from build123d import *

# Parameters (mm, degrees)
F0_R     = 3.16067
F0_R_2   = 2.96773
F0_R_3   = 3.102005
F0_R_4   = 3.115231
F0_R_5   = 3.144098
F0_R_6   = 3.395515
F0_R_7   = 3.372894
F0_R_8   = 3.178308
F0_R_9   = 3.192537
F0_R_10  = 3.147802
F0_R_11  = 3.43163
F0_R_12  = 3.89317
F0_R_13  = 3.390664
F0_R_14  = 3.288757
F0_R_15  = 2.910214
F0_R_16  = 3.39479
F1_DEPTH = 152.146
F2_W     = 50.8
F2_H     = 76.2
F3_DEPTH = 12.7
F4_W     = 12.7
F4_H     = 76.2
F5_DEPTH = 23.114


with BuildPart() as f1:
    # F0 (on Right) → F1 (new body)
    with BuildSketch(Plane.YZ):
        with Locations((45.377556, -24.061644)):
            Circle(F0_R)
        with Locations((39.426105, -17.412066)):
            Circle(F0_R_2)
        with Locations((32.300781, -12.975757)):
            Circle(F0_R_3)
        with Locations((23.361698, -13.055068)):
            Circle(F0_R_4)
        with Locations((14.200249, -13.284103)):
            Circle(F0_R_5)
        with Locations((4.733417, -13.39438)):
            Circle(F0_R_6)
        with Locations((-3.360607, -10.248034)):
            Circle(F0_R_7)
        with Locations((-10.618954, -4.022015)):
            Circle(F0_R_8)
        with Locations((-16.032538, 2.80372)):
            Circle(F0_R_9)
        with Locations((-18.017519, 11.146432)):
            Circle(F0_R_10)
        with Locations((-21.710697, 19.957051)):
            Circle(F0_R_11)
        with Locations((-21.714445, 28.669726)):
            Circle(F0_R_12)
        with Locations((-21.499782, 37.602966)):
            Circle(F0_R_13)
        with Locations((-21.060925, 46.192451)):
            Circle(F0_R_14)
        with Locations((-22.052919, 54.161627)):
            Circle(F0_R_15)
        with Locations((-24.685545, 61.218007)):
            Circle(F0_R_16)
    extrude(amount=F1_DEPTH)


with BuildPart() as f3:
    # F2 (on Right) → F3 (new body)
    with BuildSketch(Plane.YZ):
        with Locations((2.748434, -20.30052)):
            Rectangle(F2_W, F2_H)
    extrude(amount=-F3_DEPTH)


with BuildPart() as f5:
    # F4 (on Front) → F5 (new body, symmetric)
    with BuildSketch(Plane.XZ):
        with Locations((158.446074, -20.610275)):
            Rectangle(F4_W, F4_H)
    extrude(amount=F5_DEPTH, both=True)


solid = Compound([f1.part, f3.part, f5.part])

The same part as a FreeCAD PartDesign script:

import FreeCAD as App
import Part
import Sketcher

V = App.Vector
Q = App.Units.Quantity

doc = App.newDocument("Part")
body = doc.addObject("PartDesign::Body", "Body")
body.AllowCompound = True

# Sketch on YZ plane
sketch1 = doc.addObject("Sketcher::SketchObject", "Sketch")
body.addObject(sketch1)
sketch1.AttachmentSupport = (doc.YZ_Plane, [""])
sketch1.MapMode = "FlatFace"
sketch1.addGeometry([
    Part.Circle(V(45.377556, -24.061644, 0), V(0, 0, 1), 3.16067),  # 0
    Part.Circle(V(39.426105, -17.412066, 0), V(0, 0, 1), 2.96773),  # 1
    Part.Circle(V(32.300781, -12.975757, 0), V(0, 0, 1), 3.102005),  # 2
    Part.Circle(V(23.361698, -13.055068, 0), V(0, 0, 1), 3.115231),  # 3
    Part.Circle(V(14.200249, -13.284103, 0), V(0, 0, 1), 3.144098),  # 4
    Part.Circle(V(4.733417, -13.39438, 0), V(0, 0, 1), 3.395515),  # 5
    Part.Circle(V(-3.360607, -10.248034, 0), V(0, 0, 1), 3.372894),  # 6
    Part.Circle(V(-10.618954, -4.022015, 0), V(0, 0, 1), 3.178308),  # 7
    Part.Circle(V(-16.032538, 2.80372, 0), V(0, 0, 1), 3.192537),  # 8
    Part.Circle(V(-18.017519, 11.146432, 0), V(0, 0, 1), 3.147802),  # 9
    Part.Circle(V(-21.710697, 19.957051, 0), V(0, 0, 1), 3.43163),  # 10
    Part.Circle(V(-21.714445, 28.669726, 0), V(0, 0, 1), 3.89317),  # 11
    Part.Circle(V(-21.499782, 37.602966, 0), V(0, 0, 1), 3.390664),  # 12
    Part.Circle(V(-21.060925, 46.192451, 0), V(0, 0, 1), 3.288757),  # 13
    Part.Circle(V(-22.052919, 54.161627, 0), V(0, 0, 1), 2.910214),  # 14
    Part.Circle(V(-24.685545, 61.218007, 0), V(0, 0, 1), 3.39479),  # 15
], False)
sketch1.addConstraint([
    Sketcher.Constraint("Diameter", 0, Q("6.32134 mm")),
    Sketcher.Constraint("Diameter", 1, Q("5.93546 mm")),
    Sketcher.Constraint("Diameter", 2, Q("6.20401 mm")),
    Sketcher.Constraint("Diameter", 5, Q("6.79103 mm")),
    Sketcher.Constraint("Diameter", 10, Q("6.86326 mm")),
    Sketcher.Constraint("Diameter", 11, Q("7.78634 mm")),
    Sketcher.Constraint("Diameter", 12, Q("6.781328 mm")),
    Sketcher.Constraint("Diameter", 15, Q("6.78958 mm")),
    Sketcher.Constraint("Diameter", 3, Q("6.230462 mm")),
    Sketcher.Constraint("Diameter", 4, Q("6.288196 mm")),
    Sketcher.Constraint("Diameter", 6, Q("6.745788 mm")),
    Sketcher.Constraint("Diameter", 7, Q("6.356616 mm")),
    Sketcher.Constraint("Diameter", 8, Q("6.385074 mm")),
    Sketcher.Constraint("Diameter", 9, Q("6.295604 mm")),
    Sketcher.Constraint("Diameter", 13, Q("6.577514 mm")),
    Sketcher.Constraint("Diameter", 14, Q("5.820428 mm")),
    Sketcher.Constraint("DistanceX", -1, 1, 3, 3, Q("23.361698 mm")),
    Sketcher.Constraint("DistanceY", 5, 3, 8, 3, Q("16.1981 mm")),
    Sketcher.Constraint("DistanceY", 10, 3, 13, 3, Q("26.2354 mm")),
    Sketcher.Constraint("DistanceY", 11, 3, 14, 3, Q("25.491901 mm")),
    Sketcher.Constraint("DistanceX", 14, 3, 9, 3, Q("4.0354 mm")),
    Sketcher.Constraint("DistanceX", 15, 3, 11, 3, Q("2.9711 mm")),
    Sketcher.Constraint("DistanceX", -1, 1, 2, 3, Q("32.300781 mm")),
    Sketcher.Constraint("DistanceX", -1, 1, 4, 3, Q("14.200249 mm")),
    Sketcher.Constraint("DistanceY", 5, 3, -1, 1, Q("13.39438 mm")),
    Sketcher.Constraint("DistanceX", 9, 3, -1, 1, Q("18.017519 mm")),
    Sketcher.Constraint("DistanceY", -1, 1, 10, 3, Q("19.957051 mm")),
    Sketcher.Constraint("DistanceX", 12, 3, -1, 1, Q("21.499782 mm")),
    Sketcher.Constraint("DistanceX", 1, 3, 0, 3, Q("5.951451 mm")),
    Sketcher.Constraint("DistanceY", 0, 3, 1, 3, Q("6.649578 mm")),
    Sketcher.Constraint("DistanceY", 1, 3, 2, 3, Q("4.436309 mm")),
    Sketcher.Constraint("DistanceY", 3, 3, 2, 3, Q("0.079311 mm")),
    Sketcher.Constraint("DistanceY", 0, 3, 4, 3, Q("10.777541 mm")),
    Sketcher.Constraint("DistanceX", 5, 3, 3, 3, Q("18.628281 mm")),
    Sketcher.Constraint("DistanceY", 5, 3, 3, 3, Q("0.339312 mm")),
    Sketcher.Constraint("DistanceX", 5, 3, 0, 3, Q("40.644139 mm")),
    Sketcher.Constraint("DistanceY", 4, 3, 6, 3, Q("3.036069 mm")),
    Sketcher.Constraint("DistanceX", 6, 3, 2, 3, Q("35.661388 mm")),
    Sketcher.Constraint("DistanceY", 6, 3, 7, 3, Q("6.226019 mm")),
    Sketcher.Constraint("DistanceX", 7, 3, 5, 3, Q("15.352371 mm")),
    Sketcher.Constraint("DistanceX", 8, 3, 6, 3, Q("12.671931 mm")),
    Sketcher.Constraint("DistanceY", 9, 3, 10, 3, Q("8.810619 mm")),
    Sketcher.Constraint("DistanceX", 10, 3, 8, 3, Q("5.678159 mm")),
    Sketcher.Constraint("DistanceX", 11, 3, 10, 3, Q("0.003748 mm")),
    Sketcher.Constraint("DistanceY", 7, 3, 11, 3, Q("32.691741 mm")),
    Sketcher.Constraint("DistanceY", 11, 3, 12, 3, Q("8.93324 mm")),
    Sketcher.Constraint("DistanceX", 11, 3, 13, 3, Q("0.65352 mm")),
    Sketcher.Constraint("DistanceY", 14, 3, 15, 3, Q("7.05638 mm")),
])
pad1 = doc.addObject("PartDesign::Pad", "Pad")
body.addObject(pad1)
pad1.Profile = sketch1
pad1.Length = Q("5.99 in")
body2 = doc.addObject("PartDesign::Body", "Body001")

# Sketch on YZ plane
sketch2 = doc.addObject("Sketcher::SketchObject", "Sketch001")
body2.addObject(sketch2)
sketch2.AttachmentSupport = (doc.getObject("YZ_Plane001"), [""])
sketch2.MapMode = "FlatFace"
sketch2.addGeometry([
    Part.LineSegment(V(-22.651566, 17.79948, 0), V(-22.651566, -58.40052, 0)),
    Part.LineSegment(V(-22.651566, -58.40052, 0), V(28.148434, -58.40052, 0)),
    Part.LineSegment(V(28.148434, -58.40052, 0), V(28.148434, 17.79948, 0)),
    Part.LineSegment(V(28.148434, 17.79948, 0), V(-22.651566, 17.79948, 0)),
], False)
sketch2.addConstraint([
    Sketcher.Constraint("Coincident", 0, 2, 1, 1),
    Sketcher.Constraint("Coincident", 1, 2, 2, 1),
    Sketcher.Constraint("Coincident", 2, 2, 3, 1),
    Sketcher.Constraint("Coincident", 3, 2, 0, 1),
    Sketcher.Constraint("Vertical", 0),
    Sketcher.Constraint("Horizontal", 1),
    Sketcher.Constraint("Vertical", 2),
    Sketcher.Constraint("Horizontal", 3),
    Sketcher.Constraint("DistanceX", 1, 1, 1, 2, Q("2 in")),
    Sketcher.Constraint("DistanceY", 0, 2, 0, 1, Q("3 in")),
    Sketcher.Constraint("DistanceY", 0, 2, -1, 1, Q("58.40052 mm")),
    Sketcher.Constraint("DistanceX", 0, 2, -1, 1, Q("22.651566 mm")),
])
pad2 = doc.addObject("PartDesign::Pad", "Pad001")
body2.addObject(pad2)
pad2.Profile = sketch2
pad2.Length = Q("0.5 in")
pad2.Reversed = True
body3 = doc.addObject("PartDesign::Body", "Body002")

# Sketch on XZ plane
sketch3 = doc.addObject("Sketcher::SketchObject", "Sketch002")
body3.addObject(sketch3)
sketch3.AttachmentSupport = (doc.getObject("XZ_Plane002"), [""])
sketch3.MapMode = "FlatFace"
sketch3.addGeometry([
    Part.LineSegment(V(152.096074, 17.489725, 0), V(152.096074, -58.710275, 0)),
    Part.LineSegment(V(152.096074, -58.710275, 0), V(164.796074, -58.710275, 0)),
    Part.LineSegment(V(164.796074, -58.710275, 0), V(164.796074, 17.489725, 0)),
    Part.LineSegment(V(164.796074, 17.489725, 0), V(152.096074, 17.489725, 0)),
], False)
sketch3.addConstraint([
    Sketcher.Constraint("Coincident", 0, 2, 1, 1),
    Sketcher.Constraint("Coincident", 1, 2, 2, 1),
    Sketcher.Constraint("Coincident", 2, 2, 3, 1),
    Sketcher.Constraint("Coincident", 3, 2, 0, 1),
    Sketcher.Constraint("Vertical", 0),
    Sketcher.Constraint("Horizontal", 1),
    Sketcher.Constraint("Vertical", 2),
    Sketcher.Constraint("Horizontal", 3),
    Sketcher.Constraint("DistanceY", 0, 2, 0, 1, Q("3 in")),
    Sketcher.Constraint("DistanceX", 1, 1, 1, 2, Q("0.5 in")),
    Sketcher.Constraint("DistanceX", -1, 1, 0, 2, Q("152.096074 mm")),
    Sketcher.Constraint("DistanceY", 0, 2, -1, 1, Q("58.710275 mm")),
])
pad3 = doc.addObject("PartDesign::Pad", "Pad002")
body3.addObject(pad3)
pad3.Profile = sketch3
pad3.Length = Q("1.82 in")
pad3.Midplane = True

doc.recompute()
